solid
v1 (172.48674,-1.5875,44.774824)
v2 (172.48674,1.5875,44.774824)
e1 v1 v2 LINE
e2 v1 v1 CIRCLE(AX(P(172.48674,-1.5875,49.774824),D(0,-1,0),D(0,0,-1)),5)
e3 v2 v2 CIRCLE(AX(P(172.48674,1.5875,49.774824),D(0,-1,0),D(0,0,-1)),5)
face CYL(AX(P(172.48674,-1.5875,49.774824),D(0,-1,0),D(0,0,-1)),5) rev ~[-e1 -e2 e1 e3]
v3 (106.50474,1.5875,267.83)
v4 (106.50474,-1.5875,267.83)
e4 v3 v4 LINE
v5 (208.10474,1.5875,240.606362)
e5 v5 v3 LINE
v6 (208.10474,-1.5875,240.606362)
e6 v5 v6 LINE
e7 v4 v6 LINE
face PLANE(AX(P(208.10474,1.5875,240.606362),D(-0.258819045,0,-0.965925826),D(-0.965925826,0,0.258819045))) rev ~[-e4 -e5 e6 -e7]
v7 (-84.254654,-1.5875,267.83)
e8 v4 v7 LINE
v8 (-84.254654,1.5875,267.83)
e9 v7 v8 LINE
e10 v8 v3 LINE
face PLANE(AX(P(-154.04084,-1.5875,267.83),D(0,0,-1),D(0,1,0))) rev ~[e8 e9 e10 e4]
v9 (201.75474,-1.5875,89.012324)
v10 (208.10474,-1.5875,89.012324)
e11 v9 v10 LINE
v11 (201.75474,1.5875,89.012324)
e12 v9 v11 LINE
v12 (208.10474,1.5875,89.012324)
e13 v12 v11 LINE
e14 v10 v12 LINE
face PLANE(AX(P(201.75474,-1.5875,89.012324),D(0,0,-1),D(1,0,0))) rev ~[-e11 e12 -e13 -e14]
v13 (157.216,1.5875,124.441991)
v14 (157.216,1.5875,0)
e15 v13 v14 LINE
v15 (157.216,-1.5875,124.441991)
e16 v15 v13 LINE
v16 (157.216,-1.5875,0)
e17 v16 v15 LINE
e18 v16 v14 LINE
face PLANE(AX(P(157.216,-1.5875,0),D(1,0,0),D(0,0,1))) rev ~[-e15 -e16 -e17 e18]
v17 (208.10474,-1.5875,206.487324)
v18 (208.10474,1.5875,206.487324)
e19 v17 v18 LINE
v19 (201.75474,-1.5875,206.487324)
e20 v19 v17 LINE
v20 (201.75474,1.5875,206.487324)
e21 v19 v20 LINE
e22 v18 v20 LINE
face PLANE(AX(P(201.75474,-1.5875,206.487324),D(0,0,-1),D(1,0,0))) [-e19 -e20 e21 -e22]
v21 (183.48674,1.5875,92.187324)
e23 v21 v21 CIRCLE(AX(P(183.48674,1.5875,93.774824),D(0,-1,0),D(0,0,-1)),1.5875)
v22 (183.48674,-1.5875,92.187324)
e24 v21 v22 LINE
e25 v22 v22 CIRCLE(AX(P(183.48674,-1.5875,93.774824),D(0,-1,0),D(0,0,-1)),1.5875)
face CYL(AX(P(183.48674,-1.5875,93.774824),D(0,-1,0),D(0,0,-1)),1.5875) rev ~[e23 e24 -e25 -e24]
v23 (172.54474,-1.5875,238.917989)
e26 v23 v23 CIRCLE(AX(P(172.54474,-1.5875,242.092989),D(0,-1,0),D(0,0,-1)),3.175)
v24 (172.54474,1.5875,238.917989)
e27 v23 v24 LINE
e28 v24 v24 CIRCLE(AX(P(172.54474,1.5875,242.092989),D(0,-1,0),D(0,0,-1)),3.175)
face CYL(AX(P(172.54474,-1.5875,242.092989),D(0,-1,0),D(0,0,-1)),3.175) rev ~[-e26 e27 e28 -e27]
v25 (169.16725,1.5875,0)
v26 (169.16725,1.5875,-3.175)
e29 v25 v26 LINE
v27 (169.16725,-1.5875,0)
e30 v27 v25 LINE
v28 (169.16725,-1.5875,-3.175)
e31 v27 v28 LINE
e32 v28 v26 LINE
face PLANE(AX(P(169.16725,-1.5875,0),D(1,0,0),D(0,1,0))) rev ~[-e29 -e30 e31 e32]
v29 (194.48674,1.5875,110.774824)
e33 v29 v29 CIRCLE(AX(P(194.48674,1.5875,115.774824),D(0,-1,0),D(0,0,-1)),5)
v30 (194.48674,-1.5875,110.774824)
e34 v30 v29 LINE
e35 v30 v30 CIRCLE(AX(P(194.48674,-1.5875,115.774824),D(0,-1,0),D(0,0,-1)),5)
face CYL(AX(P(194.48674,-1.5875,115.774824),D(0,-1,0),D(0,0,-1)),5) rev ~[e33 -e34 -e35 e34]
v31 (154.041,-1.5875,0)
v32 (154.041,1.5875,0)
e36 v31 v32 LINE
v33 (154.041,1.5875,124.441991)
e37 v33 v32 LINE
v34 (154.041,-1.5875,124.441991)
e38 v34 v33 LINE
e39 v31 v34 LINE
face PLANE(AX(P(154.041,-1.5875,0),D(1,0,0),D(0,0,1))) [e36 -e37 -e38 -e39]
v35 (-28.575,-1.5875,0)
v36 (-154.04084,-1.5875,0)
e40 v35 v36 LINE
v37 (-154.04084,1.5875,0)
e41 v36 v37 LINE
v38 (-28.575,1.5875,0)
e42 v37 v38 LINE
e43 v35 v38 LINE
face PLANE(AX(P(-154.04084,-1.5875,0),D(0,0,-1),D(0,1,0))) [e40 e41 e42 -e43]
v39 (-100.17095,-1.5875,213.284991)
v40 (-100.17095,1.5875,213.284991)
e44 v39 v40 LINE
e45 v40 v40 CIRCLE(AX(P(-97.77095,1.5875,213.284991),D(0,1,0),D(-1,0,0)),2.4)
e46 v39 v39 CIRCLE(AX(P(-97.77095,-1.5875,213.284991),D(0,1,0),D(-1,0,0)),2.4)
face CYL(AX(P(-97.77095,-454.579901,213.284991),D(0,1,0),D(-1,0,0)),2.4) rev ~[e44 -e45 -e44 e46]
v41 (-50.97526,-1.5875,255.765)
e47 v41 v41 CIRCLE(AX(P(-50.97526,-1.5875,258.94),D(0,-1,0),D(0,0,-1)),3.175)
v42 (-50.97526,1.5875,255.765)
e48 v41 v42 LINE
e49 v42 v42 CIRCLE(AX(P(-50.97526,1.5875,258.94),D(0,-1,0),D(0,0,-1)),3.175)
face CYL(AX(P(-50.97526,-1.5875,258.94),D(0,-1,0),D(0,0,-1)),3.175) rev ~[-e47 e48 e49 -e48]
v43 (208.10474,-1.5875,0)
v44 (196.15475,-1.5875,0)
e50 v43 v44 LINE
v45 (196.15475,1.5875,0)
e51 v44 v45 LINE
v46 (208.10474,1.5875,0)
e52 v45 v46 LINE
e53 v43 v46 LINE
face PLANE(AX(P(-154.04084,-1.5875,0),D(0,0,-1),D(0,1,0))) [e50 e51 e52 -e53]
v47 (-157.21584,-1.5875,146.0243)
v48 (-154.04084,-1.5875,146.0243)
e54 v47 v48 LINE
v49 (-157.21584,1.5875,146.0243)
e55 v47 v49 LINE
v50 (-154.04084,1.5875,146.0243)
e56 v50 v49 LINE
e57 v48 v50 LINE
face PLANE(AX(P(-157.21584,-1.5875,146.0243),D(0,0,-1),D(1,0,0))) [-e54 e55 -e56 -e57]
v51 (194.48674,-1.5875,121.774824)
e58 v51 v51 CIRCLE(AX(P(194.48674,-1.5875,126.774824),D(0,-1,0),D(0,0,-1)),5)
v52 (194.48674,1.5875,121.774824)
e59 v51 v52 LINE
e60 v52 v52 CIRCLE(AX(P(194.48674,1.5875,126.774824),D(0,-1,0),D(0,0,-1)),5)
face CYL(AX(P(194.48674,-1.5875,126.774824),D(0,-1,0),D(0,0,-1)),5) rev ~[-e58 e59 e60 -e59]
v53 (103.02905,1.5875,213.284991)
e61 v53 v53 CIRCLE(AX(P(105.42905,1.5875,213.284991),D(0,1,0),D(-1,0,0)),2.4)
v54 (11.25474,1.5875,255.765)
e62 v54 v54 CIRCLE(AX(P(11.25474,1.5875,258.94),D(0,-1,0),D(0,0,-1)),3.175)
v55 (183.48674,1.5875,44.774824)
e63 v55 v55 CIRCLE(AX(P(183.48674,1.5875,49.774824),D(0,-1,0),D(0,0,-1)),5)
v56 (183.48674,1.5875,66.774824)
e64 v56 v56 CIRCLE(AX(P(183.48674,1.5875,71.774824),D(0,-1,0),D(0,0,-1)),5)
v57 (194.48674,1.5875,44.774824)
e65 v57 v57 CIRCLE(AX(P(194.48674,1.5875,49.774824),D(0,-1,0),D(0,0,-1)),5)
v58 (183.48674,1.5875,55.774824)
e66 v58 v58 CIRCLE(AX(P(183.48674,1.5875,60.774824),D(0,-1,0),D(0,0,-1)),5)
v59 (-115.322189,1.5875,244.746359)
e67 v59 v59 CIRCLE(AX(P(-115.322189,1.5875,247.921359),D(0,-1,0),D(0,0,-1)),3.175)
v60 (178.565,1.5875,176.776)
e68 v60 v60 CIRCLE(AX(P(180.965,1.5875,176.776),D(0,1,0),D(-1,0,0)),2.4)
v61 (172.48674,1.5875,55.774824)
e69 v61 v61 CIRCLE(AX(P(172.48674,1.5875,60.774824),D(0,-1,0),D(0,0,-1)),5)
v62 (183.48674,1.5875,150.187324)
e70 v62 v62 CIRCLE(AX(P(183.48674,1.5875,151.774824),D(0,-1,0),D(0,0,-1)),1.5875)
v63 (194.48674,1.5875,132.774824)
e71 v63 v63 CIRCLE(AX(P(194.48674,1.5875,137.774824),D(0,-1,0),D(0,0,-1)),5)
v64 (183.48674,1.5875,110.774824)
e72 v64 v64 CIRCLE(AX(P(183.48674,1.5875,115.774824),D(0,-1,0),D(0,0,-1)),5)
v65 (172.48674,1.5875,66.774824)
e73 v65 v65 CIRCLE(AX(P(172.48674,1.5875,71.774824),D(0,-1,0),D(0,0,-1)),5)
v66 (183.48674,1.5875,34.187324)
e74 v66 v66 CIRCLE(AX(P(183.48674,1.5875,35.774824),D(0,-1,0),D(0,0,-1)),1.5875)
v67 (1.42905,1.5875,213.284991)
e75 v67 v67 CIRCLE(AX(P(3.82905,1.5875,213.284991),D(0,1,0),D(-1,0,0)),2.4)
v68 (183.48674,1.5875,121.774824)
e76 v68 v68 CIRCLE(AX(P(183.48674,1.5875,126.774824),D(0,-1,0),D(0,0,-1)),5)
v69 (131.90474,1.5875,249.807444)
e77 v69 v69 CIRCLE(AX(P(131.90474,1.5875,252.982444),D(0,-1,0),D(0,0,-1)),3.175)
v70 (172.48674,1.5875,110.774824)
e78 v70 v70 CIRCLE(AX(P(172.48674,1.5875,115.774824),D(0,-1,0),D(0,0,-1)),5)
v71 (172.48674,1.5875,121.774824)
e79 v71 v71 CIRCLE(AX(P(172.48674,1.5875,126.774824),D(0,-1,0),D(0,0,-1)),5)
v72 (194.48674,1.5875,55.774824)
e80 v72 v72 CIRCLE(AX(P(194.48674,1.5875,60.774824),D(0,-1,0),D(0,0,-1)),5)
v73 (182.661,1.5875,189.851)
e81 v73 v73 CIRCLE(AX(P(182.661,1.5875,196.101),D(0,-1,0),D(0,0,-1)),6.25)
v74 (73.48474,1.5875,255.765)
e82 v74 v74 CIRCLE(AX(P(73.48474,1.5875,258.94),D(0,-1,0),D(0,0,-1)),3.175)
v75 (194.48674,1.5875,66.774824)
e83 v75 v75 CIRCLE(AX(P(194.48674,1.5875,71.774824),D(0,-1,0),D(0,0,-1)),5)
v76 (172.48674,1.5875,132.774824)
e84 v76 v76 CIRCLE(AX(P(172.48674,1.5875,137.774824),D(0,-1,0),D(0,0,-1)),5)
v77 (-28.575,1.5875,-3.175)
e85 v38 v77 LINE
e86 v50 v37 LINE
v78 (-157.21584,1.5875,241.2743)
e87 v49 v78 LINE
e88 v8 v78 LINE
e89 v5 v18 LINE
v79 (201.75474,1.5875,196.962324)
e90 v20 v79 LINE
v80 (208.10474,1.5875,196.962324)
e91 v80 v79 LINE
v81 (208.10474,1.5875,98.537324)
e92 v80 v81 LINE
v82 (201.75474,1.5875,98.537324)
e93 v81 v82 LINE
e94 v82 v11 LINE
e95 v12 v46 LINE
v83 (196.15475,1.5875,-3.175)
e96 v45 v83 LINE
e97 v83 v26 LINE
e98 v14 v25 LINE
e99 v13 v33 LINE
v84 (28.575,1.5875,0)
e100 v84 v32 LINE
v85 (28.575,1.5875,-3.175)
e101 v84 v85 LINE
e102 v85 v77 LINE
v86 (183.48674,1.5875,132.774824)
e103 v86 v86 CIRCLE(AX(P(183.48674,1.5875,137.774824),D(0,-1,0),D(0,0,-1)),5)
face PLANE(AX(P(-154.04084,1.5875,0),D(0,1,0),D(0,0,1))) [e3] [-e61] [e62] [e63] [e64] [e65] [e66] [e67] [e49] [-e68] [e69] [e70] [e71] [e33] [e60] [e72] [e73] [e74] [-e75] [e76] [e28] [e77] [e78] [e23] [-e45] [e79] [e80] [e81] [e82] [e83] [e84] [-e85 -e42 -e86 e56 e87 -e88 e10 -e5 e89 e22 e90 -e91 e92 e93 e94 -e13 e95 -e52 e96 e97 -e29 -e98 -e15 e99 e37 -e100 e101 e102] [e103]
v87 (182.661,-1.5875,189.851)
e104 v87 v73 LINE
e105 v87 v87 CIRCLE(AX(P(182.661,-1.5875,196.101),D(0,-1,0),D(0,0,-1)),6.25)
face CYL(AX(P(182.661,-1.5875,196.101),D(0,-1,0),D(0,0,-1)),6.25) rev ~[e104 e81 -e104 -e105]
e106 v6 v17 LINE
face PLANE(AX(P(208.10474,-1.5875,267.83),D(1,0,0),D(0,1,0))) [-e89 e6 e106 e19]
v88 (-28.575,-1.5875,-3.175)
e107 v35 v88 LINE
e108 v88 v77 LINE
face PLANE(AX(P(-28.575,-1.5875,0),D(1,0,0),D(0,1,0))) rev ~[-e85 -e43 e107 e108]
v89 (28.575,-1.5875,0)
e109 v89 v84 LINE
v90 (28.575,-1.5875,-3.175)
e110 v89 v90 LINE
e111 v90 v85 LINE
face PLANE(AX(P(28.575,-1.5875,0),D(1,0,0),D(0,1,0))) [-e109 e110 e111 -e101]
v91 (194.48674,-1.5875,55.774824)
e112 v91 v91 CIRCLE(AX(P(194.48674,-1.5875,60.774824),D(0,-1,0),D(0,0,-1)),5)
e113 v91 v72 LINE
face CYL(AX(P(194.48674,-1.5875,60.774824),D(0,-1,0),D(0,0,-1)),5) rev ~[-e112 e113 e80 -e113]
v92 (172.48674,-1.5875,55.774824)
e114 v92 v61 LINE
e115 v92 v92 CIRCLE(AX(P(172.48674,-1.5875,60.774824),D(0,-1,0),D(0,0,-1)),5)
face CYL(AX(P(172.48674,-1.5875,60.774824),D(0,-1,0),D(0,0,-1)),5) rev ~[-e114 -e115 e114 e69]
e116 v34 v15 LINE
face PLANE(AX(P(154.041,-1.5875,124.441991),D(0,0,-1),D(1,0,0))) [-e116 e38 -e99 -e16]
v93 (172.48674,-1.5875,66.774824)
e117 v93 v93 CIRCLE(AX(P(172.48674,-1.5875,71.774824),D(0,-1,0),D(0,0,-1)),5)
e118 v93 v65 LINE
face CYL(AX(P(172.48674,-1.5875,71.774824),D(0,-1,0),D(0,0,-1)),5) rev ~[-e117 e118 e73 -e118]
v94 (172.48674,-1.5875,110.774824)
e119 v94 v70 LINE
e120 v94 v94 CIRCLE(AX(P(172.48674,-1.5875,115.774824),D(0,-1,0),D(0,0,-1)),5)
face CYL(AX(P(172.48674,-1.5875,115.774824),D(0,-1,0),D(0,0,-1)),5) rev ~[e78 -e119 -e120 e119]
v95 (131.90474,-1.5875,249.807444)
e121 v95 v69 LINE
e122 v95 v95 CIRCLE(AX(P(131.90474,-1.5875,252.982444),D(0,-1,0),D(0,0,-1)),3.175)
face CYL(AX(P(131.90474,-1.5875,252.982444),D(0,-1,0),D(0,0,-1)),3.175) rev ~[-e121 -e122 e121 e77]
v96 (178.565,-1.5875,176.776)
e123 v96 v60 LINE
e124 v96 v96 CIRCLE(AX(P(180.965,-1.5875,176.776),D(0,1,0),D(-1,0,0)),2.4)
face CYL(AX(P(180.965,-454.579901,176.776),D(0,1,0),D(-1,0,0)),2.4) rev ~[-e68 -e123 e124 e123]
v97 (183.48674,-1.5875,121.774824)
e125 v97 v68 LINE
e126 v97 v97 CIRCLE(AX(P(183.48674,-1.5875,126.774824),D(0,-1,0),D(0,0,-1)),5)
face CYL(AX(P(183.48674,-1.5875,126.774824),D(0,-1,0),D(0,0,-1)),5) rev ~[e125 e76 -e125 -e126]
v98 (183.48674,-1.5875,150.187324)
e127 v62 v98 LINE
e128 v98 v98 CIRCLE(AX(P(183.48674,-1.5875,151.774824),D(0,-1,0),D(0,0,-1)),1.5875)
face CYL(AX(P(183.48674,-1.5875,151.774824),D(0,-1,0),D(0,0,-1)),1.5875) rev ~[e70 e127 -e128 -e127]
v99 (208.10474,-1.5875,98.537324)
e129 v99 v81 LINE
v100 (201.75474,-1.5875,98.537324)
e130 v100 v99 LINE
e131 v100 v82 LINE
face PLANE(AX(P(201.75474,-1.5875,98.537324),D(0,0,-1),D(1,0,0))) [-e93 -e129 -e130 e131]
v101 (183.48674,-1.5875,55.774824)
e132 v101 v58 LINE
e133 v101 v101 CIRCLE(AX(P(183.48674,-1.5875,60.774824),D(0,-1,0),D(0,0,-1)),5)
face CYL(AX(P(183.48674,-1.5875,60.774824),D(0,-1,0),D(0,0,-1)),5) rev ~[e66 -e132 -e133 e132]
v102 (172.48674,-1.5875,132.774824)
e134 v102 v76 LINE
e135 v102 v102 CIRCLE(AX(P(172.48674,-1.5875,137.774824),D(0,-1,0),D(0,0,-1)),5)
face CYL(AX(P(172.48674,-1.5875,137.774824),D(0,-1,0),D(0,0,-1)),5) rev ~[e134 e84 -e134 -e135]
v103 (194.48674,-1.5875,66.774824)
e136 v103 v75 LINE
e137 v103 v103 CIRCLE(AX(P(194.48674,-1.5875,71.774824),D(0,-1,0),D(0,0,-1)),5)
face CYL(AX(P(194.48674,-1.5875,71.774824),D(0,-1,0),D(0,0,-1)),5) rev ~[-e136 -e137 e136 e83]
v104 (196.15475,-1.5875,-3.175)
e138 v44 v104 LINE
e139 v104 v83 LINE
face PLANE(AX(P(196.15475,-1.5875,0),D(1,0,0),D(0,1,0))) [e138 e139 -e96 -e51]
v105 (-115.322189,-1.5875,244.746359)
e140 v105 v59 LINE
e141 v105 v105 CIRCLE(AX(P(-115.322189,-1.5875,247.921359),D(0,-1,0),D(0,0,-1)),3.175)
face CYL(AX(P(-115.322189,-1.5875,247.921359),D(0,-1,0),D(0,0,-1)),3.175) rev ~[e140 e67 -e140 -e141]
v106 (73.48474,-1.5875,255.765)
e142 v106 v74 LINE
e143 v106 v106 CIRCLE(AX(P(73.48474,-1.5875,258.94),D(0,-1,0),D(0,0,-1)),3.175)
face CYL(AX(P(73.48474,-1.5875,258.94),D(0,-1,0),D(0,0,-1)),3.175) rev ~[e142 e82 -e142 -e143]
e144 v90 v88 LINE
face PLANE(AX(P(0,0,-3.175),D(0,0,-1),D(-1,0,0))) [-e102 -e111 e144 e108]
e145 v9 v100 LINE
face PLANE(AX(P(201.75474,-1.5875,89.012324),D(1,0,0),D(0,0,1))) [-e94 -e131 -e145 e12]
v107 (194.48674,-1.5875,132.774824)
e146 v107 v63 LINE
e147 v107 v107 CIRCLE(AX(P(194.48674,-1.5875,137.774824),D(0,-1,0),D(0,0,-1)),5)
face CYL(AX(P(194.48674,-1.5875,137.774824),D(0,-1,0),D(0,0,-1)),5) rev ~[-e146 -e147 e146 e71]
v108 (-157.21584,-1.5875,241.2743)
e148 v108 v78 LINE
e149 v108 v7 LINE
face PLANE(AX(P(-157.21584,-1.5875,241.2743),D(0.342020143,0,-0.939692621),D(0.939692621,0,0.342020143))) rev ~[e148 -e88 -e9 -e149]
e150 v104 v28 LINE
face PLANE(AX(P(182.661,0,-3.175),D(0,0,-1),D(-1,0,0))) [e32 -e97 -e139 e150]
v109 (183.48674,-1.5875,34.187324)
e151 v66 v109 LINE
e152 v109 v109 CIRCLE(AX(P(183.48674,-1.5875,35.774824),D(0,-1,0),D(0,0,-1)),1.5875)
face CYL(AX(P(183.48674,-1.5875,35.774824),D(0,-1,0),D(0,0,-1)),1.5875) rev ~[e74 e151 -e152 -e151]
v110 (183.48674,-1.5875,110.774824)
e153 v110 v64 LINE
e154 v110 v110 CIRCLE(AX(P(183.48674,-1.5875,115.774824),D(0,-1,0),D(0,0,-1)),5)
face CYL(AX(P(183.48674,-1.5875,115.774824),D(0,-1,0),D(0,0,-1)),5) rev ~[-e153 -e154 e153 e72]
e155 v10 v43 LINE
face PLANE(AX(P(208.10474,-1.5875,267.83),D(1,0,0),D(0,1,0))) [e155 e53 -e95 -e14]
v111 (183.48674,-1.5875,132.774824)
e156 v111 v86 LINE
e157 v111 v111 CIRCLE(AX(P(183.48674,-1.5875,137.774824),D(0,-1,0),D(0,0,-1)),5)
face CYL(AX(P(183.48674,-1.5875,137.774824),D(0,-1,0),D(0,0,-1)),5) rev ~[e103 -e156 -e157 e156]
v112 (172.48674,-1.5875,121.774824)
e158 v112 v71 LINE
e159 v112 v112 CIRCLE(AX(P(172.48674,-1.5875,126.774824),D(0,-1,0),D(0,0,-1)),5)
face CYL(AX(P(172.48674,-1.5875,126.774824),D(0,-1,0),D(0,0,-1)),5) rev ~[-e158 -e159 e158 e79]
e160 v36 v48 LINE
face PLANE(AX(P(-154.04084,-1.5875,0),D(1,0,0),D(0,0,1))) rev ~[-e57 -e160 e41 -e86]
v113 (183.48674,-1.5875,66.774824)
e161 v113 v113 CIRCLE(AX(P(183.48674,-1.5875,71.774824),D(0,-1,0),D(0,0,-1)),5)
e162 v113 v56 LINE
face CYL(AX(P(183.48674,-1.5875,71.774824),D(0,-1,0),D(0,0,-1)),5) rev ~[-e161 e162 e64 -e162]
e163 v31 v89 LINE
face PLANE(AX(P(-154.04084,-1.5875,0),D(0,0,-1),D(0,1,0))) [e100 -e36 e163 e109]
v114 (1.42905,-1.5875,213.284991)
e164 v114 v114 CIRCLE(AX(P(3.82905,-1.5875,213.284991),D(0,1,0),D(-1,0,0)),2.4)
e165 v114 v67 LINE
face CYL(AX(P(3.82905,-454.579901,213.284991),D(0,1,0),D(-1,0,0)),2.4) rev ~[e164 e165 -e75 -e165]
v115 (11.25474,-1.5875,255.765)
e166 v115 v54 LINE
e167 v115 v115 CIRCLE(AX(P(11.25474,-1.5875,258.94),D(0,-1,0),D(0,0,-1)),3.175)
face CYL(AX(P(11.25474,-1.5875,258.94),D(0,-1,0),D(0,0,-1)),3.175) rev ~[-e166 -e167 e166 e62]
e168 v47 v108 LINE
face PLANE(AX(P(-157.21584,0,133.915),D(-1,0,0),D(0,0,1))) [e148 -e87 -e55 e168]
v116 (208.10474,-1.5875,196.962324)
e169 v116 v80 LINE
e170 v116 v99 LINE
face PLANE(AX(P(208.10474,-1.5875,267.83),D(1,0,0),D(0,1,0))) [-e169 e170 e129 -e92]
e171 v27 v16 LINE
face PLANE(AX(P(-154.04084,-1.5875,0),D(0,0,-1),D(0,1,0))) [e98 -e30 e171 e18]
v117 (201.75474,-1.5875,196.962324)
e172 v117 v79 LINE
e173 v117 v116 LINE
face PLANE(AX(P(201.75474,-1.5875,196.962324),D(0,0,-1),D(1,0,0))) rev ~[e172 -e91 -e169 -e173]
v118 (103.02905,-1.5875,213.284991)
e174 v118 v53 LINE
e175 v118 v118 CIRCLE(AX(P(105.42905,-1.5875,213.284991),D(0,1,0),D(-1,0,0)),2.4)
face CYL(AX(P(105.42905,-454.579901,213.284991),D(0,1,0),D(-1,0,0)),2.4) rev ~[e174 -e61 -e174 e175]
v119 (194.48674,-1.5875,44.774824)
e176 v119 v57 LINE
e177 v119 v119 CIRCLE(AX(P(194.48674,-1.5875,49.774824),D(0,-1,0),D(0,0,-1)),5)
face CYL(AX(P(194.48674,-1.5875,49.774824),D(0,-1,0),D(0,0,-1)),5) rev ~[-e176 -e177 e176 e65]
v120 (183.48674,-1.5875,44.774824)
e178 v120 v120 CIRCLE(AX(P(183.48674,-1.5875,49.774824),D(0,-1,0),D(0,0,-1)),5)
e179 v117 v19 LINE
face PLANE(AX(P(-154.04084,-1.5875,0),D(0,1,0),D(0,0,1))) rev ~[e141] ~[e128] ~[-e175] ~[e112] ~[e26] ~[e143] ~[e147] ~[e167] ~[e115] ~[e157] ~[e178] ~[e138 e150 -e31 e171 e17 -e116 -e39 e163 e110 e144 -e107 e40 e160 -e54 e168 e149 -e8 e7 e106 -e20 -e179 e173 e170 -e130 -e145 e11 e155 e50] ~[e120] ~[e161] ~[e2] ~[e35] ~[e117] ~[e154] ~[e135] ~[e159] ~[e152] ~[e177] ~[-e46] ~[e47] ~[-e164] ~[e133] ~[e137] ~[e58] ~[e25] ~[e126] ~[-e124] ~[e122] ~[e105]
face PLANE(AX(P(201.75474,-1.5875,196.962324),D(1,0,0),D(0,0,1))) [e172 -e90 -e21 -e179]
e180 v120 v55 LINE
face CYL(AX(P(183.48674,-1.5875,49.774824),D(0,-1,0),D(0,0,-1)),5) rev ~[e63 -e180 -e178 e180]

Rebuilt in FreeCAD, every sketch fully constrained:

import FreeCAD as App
import Part
import Sketcher
Q = App.Units.Quantity


def add_polygon(sketch, points):
    """Adds a closed chain of lines whose ends are joined by coincident constraints."""
    first, n = sketch.GeometryCount, len(points)
    for a, b in zip(points, points[1:] + points[:1]):
        sketch.addGeometry(Part.LineSegment(App.Vector(*a, 0), App.Vector(*b, 0)), False)
    for i in range(n):
        sketch.addConstraint(Sketcher.Constraint("Coincident", first + i, 2, first + (i + 1) % n, 1))

doc = App.newDocument("Part")
body = doc.addObject("PartDesign::Body", "Body")

# Sketch on XY plane
sketch1 = doc.addObject("Sketcher::SketchObject", "Sketch")
body.addObject(sketch1)
sketch1.AttachmentSupport = (doc.XY_Plane, [""])
sketch1.MapMode = "FlatFace"
add_polygon(sketch1, [(-154, 1.6), (-154, -1.6), (154, -1.6), (154, 1.6)])  # lines 0-3
sketch1.addConstraint(Sketcher.Constraint("Vertical", 0))
sketch1.addConstraint(Sketcher.Constraint("Horizontal", 1))
sketch1.addConstraint(Sketcher.Constraint("Vertical", 2))
sketch1.addConstraint(Sketcher.Constraint("Horizontal", 3))
sketch1.addConstraint(Sketcher.Constraint("Symmetric", 0, 2, 2, 2, -1, 1))
sketch1.addConstraint(Sketcher.Constraint("DistanceY", 0, 2, 0, 1, Q("0.125 in")))
sketch1.addConstraint(Sketcher.Constraint("DistanceX", 1, 1, 1, 2, Q("12.1292 in")))
pad1 = doc.addObject("PartDesign::Pad", "Pad")
body.addObject(pad1)
pad1.Profile = sketch1
pad1.Length = 267.83

# Sketch on YZ plane
sketch2 = doc.addObject("Sketcher::SketchObject", "Sketch001")
body.addObject(sketch2)
sketch2.AttachmentSupport = (doc.YZ_Plane, [""])
sketch2.MapMode = "FlatFace"
sketch2.AttachmentOffset = App.Placement(App.Vector(0, 0, 6.0646 * 25.4), App.Rotation())
add_polygon(sketch2, [(1.6, 267.8), (-1.6, 267.8), (-1.6, 0), (1.6, 0)])  # lines 0-3
sketch2.addConstraint(Sketcher.Constraint("Horizontal", 0))
sketch2.addConstraint(Sketcher.Constraint("Vertical", 1))
sketch2.addConstraint(Sketcher.Constraint("Horizontal", 2))
sketch2.addConstraint(Sketcher.Constraint("Vertical", 3))
sketch2.addConstraint(Sketcher.Constraint("Symmetric", 1, 2, 2, 2, -1, 1))
sketch2.addConstraint(Sketcher.Constraint("DistanceX", 0, 2, 0, 1, Q("0.125 in")))
sketch2.addConstraint(Sketcher.Constraint("DistanceY", 1, 2, 1, 1, 267.83))
pad2 = doc.addObject("PartDesign::Pad", "Pad001")
body.addObject(pad2)
pad2.Profile = sketch2
pad2.Length = Q("0.125 in")

# Sketch on XY plane
sketch3 = doc.addObject("Sketcher::SketchObject", "Sketch002")
body.addObject(sketch3)
sketch3.AttachmentSupport = (doc.XY_Plane, [""])
sketch3.MapMode = "FlatFace"
sketch3.AttachmentOffset = App.Placement(App.Vector(0, 0, 267.83), App.Rotation())
add_polygon(sketch3, [(157.2, 1.6), (157.2, -1.6), (208.1, -1.6), (208.1, 1.6)])  # lines 0-3
sketch3.addConstraint(Sketcher.Constraint("Vertical", 0))
sketch3.addConstraint(Sketcher.Constraint("Horizontal", 1))
sketch3.addConstraint(Sketcher.Constraint("Vertical", 2))
sketch3.addConstraint(Sketcher.Constraint("Horizontal", 3))
sketch3.addConstraint(Sketcher.Constraint("DistanceY", 0, 2, 0, 1, Q("0.125 in")))
sketch3.addConstraint(Sketcher.Constraint("DistanceX", 1, 1, 1, 2, Q("2.0035 in")))
sketch3.addConstraint(Sketcher.Constraint("DistanceY", 0, 2, -1, 1, Q("0.0625 in")))
sketch3.addConstraint(Sketcher.Constraint("DistanceX", -1, 1, 0, 2, Q("6.1896 in")))
pad3 = doc.addObject("PartDesign::Pad", "Pad002")
body.addObject(pad3)
pad3.Profile = sketch3
pad3.Length = 267.83
pad3.Reversed = True

# Sketch on XZ plane
sketch4 = doc.addObject("Sketcher::SketchObject", "Sketch003")
body.addObject(sketch4)
sketch4.AttachmentSupport = (doc.XZ_Plane, [""])
sketch4.MapMode = "FlatFace"
sketch4.AttachmentOffset = App.Placement(App.Vector(0, 0, -0.0625 * 25.4), App.Rotation())
add_polygon(sketch4, [(208, 241), (107, 268), (208, 268)])  # lines 0-2
sketch4.addConstraint(Sketcher.Constraint("Horizontal", 1))
sketch4.addConstraint(Sketcher.Constraint("Vertical", 2))
sketch4.addConstraint(Sketcher.Constraint("DistanceX", 1, 1, 1, 2, Q("4 in")))
sketch4.addConstraint(Sketcher.Constraint("Angle", 0, Q("165 deg")))
sketch4.addConstraint(Sketcher.Constraint("DistanceX", -1, 1, 0, 2, Q("4.1931 in")))
sketch4.addConstraint(Sketcher.Constraint("DistanceY", -1, 1, 0, 2, 267.83))
pocket1 = doc.addObject("PartDesign::Pocket", "Pocket")
body.addObject(pocket1)
pocket1.Profile = sketch4
pocket1.Type = "ThroughAll"
pocket1.Reversed = True

# Sketch on YZ plane
sketch5 = doc.addObject("Sketcher::SketchObject", "Sketch004")
body.addObject(sketch5)
sketch5.AttachmentSupport = (doc.YZ_Plane, [""])
sketch5.MapMode = "FlatFace"
sketch5.AttachmentOffset = App.Placement(App.Vector(0, 0, -6.0646 * 25.4), App.Rotation())
add_polygon(sketch5, [(1.6, 0), (-1.6, 0), (-1.6, 267.8), (1.6, 267.8)])  # lines 0-3
sketch5.addConstraint(Sketcher.Constraint("Horizontal", 0))
sketch5.addConstraint(Sketcher.Constraint("Vertical", 1))
sketch5.addConstraint(Sketcher.Constraint("Horizontal", 2))
sketch5.addConstraint(Sketcher.Constraint("Vertical", 3))
sketch5.addConstraint(Sketcher.Constraint("Symmetric", 0, 2, 3, 2, -1, 1))
sketch5.addConstraint(Sketcher.Constraint("DistanceX", 0, 2, 0, 1, Q("0.125 in")))
sketch5.addConstraint(Sketcher.Constraint("DistanceY", 1, 1, 1, 2, 267.83))
pad4 = doc.addObject("PartDesign::Pad", "Pad003")
body.addObject(pad4)
pad4.Profile = sketch5
pad4.Length = Q("0.125 in")
pad4.Reversed = True

# Sketch on XZ plane
sketch6 = doc.addObject("Sketcher::SketchObject", "Sketch005")
body.addObject(sketch6)
sketch6.AttachmentSupport = (doc.XZ_Plane, [""])
sketch6.MapMode = "FlatFace"
sketch6.AttachmentOffset = App.Placement(App.Vector(0, 0, 0.0625 * 25.4), App.Rotation())
add_polygon(sketch6, [(-157, 241), (-84, 268), (-157, 268)])  # lines 0-2
sketch6.addConstraint(Sketcher.Constraint("Horizontal", 1))
sketch6.addConstraint(Sketcher.Constraint("Vertical", 2))
sketch6.addConstraint(Sketcher.Constraint("Angle", 0, Q("20 deg")))
sketch6.addConstraint(Sketcher.Constraint("DistanceY", 2, 2, 2, 1, Q("1.0455 in")))
sketch6.addConstraint(Sketcher.Constraint("DistanceX", 1, 2, -1, 1, Q("6.1896 in")))
sketch6.addConstraint(Sketcher.Constraint("DistanceY", -1, 1, 0, 2, 267.83))
pocket2 = doc.addObject("PartDesign::Pocket", "Pocket001")
body.addObject(pocket2)
pocket2.Profile = sketch6
pocket2.Type = "ThroughAll"

# Sketch on XZ plane
sketch7 = doc.addObject("Sketcher::SketchObject", "Sketch006")
body.addObject(sketch7)
sketch7.AttachmentSupport = (doc.XZ_Plane, [""])
sketch7.MapMode = "FlatFace"
sketch7.AttachmentOffset = App.Placement(App.Vector(0, 0, 0.0625 * 25.4), App.Rotation())
sketch7.addGeometry(Part.Circle(App.Vector(-115.3, 247.9, 0), App.Vector(0, 0, 1), 3.2), False)
sketch7.addGeometry(Part.Circle(App.Vector(-51, 258.9, 0), App.Vector(0, 0, 1), 3.2), False)
sketch7.addGeometry(Part.Circle(App.Vector(11.3, 258.9, 0), App.Vector(0, 0, 1), 3.2), False)
sketch7.addGeometry(Part.Circle(App.Vector(73.5, 258.9, 0), App.Vector(0, 0, 1), 3.2), False)
sketch7.addGeometry(Part.Circle(App.Vector(172.5, 242.1, 0), App.Vector(0, 0, 1), 3.2), False)
sketch7.addGeometry(Part.Circle(App.Vector(131.9, 253, 0), App.Vector(0, 0, 1), 3.2), False)
sketch7.addConstraint(Sketcher.Constraint("Equal", 0, 1))
sketch7.addConstraint(Sketcher.Constraint("Equal", 1, 2))
sketch7.addConstraint(Sketcher.Constraint("Equal", 2, 3))
sketch7.addConstraint(Sketcher.Constraint("Equal", 3, 4))
sketch7.addConstraint(Sketcher.Constraint("Equal", 4, 5))
sketch7.addConstraint(Sketcher.Constraint("Horizontal", 1, 3, 2, 3))
sketch7.addConstraint(Sketcher.Constraint("Horizontal", 2, 3, 3, 3))
sketch7.addConstraint(Sketcher.Constraint("Diameter", 0, Q("0.25 in")))
sketch7.addConstraint(Sketcher.Constraint("DistanceX", 1, 3, 3, 3, Q("4.9 in")))
sketch7.addConstraint(Sketcher.Constraint("DistanceX", 3, 3, 4, 3, Q("3.9 in")))
sketch7.addConstraint(Sketcher.Constraint("DistanceX", 5, 3, 4, 3, Q("1.6 in")))
sketch7.addConstraint(Sketcher.Constraint("DistanceX", 1, 3, 2, 3, Q("2.45 in")))
sketch7.addConstraint(Sketcher.Constraint("DistanceX", 1, 3, -1, 1, Q("2.0069 in")))
sketch7.addConstraint(Sketcher.Constraint("DistanceY", -1, 1, 1, 3, 258.94))
sketch7.addConstraint(Sketcher.Constraint("DistanceX", 0, 3, -1, 1, 115.322189))
sketch7.addConstraint(Sketcher.Constraint("DistanceY", -1, 1, 0, 3, 247.921359))
sketch7.addConstraint(Sketcher.Constraint("DistanceY", -1, 1, 4, 3, 242.092989))
sketch7.addConstraint(Sketcher.Constraint("DistanceY", -1, 1, 5, 3, 252.982444))
pocket3 = doc.addObject("PartDesign::Pocket", "Pocket002")
body.addObject(pocket3)
pocket3.Profile = sketch7
pocket3.Length = Q("0.125 in")

# Sketch on XZ plane
sketch8 = doc.addObject("Sketcher::SketchObject", "Sketch007")
body.addObject(sketch8)
sketch8.AttachmentSupport = (doc.XZ_Plane, [""])
sketch8.MapMode = "FlatFace"
sketch8.AttachmentOffset = App.Placement(App.Vector(0, 0, 0.0625 * 25.4), App.Rotation())
sketch8.addGeometry(Part.Circle(App.Vector(172, 138, 0), App.Vector(0, 0, 1), 5), False)
sketch8.addGeometry(Part.Circle(App.Vector(183, 138, 0), App.Vector(0, 0, 1), 5), False)
sketch8.addGeometry(Part.Circle(App.Vector(194, 138, 0), App.Vector(0, 0, 1), 5), False)
sketch8.addGeometry(Part.Circle(App.Vector(194, 127, 0), App.Vector(0, 0, 1), 5), False)
sketch8.addGeometry(Part.Circle(App.Vector(194, 116, 0), App.Vector(0, 0, 1), 5), False)
sketch8.addGeometry(Part.Circle(App.Vector(183, 127, 0), App.Vector(0, 0, 1), 5), False)
sketch8.addGeometry(Part.Circle(App.Vector(183, 116, 0), App.Vector(0, 0, 1), 5), False)
sketch8.addGeometry(Part.Circle(App.Vector(172, 116, 0), App.Vector(0, 0, 1), 5), False)
sketch8.addGeometry(Part.Circle(App.Vector(172, 127, 0), App.Vector(0, 0, 1), 5), False)
sketch8.addGeometry(Part.Circle(App.Vector(194, 72, 0), App.Vector(0, 0, 1), 5), False)
sketch8.addGeometry(Part.Circle(App.Vector(194, 61, 0), App.Vector(0, 0, 1), 5), False)
sketch8.addGeometry(Part.Circle(App.Vector(194, 50, 0), App.Vector(0, 0, 1), 5), False)
sketch8.addGeometry(Part.Circle(App.Vector(183, 72, 0), App.Vector(0, 0, 1), 5), False)
sketch8.addGeometry(Part.Circle(App.Vector(183, 61, 0), App.Vector(0, 0, 1), 5), False)
sketch8.addGeometry(Part.Circle(App.Vector(183, 50, 0), App.Vector(0, 0, 1), 5), False)
sketch8.addGeometry(Part.Circle(App.Vector(172, 50, 0), App.Vector(0, 0, 1), 5), False)
sketch8.addGeometry(Part.Circle(App.Vector(172, 61, 0), App.Vector(0, 0, 1), 5), False)
sketch8.addGeometry(Part.Circle(App.Vector(172, 72, 0), App.Vector(0, 0, 1), 5), False)
sketch8.addConstraint(Sketcher.Constraint("Equal", 0, 1))
sketch8.addConstraint(Sketcher.Constraint("Equal", 1, 2))
sketch8.addConstraint(Sketcher.Constraint("Equal", 2, 3))
sketch8.addConstraint(Sketcher.Constraint("Equal", 3, 4))
sketch8.addConstraint(Sketcher.Constraint("Equal", 4, 5))
sketch8.addConstraint(Sketcher.Constraint("Equal", 5, 6))
sketch8.addConstraint(Sketcher.Constraint("Equal", 6, 7))
sketch8.addConstraint(Sketcher.Constraint("Equal", 7, 8))
sketch8.addConstraint(Sketcher.Constraint("Equal", 8, 9))
sketch8.addConstraint(Sketcher.Constraint("Equal", 9, 10))
sketch8.addConstraint(Sketcher.Constraint("Equal", 10, 11))
sketch8.addConstraint(Sketcher.Constraint("Equal", 11, 12))
sketch8.addConstraint(Sketcher.Constraint("Equal", 12, 13))
sketch8.addConstraint(Sketcher.Constraint("Equal", 13, 14))
sketch8.addConstraint(Sketcher.Constraint("Equal", 14, 15))
sketch8.addConstraint(Sketcher.Constraint("Equal", 15, 16))
sketch8.addConstraint(Sketcher.Constraint("Equal", 16, 17))
sketch8.addConstraint(Sketcher.Constraint("Horizontal", 0, 3, 1, 3))
sketch8.addConstraint(Sketcher.Constraint("Horizontal", 1, 3, 2, 3))
sketch8.addConstraint(Sketcher.Constraint("Horizontal", 3, 3, 5, 3))
sketch8.addConstraint(Sketcher.Constraint("Horizontal", 4, 3, 6, 3))
sketch8.addConstraint(Sketcher.Constraint("Horizontal", 6, 3, 7, 3))
sketch8.addConstraint(Sketcher.Constraint("Horizontal", 5, 3, 8, 3))
sketch8.addConstraint(Sketcher.Constraint("Horizontal", 9, 3, 12, 3))
sketch8.addConstraint(Sketcher.Constraint("Horizontal", 10, 3, 13, 3))
sketch8.addConstraint(Sketcher.Constraint("Horizontal", 11, 3, 14, 3))
sketch8.addConstraint(Sketcher.Constraint("Horizontal", 14, 3, 15, 3))
sketch8.addConstraint(Sketcher.Constraint("Horizontal", 13, 3, 16, 3))
sketch8.addConstraint(Sketcher.Constraint("Horizontal", 12, 3, 17, 3))
sketch8.addConstraint(Sketcher.Constraint("Vertical", 2, 3, 3, 3))
sketch8.addConstraint(Sketcher.Constraint("Vertical", 3, 3, 4, 3))
sketch8.addConstraint(Sketcher.Constraint("Vertical", 1, 3, 5, 3))
sketch8.addConstraint(Sketcher.Constraint("Vertical", 5, 3, 6, 3))
sketch8.addConstraint(Sketcher.Constraint("Vertical", 0, 3, 7, 3))
sketch8.addConstraint(Sketcher.Constraint("Vertical", 7, 3, 8, 3))
sketch8.addConstraint(Sketcher.Constraint("Vertical", 4, 3, 9, 3))
sketch8.addConstraint(Sketcher.Constraint("Vertical", 9, 3, 10, 3))
sketch8.addConstraint(Sketcher.Constraint("Vertical", 10, 3, 11, 3))
sketch8.addConstraint(Sketcher.Constraint("Vertical", 6, 3, 12, 3))
sketch8.addConstraint(Sketcher.Constraint("Vertical", 12, 3, 13, 3))
sketch8.addConstraint(Sketcher.Constraint("Vertical", 13, 3, 14, 3))
sketch8.addConstraint(Sketcher.Constraint("Vertical", 8, 3, 15, 3))
sketch8.addConstraint(Sketcher.Constraint("Vertical", 15, 3, 16, 3))
sketch8.addConstraint(Sketcher.Constraint("Vertical", 16, 3, 17, 3))
sketch8.addConstraint(Sketcher.Constraint("Diameter", 0, 10.0))
sketch8.addConstraint(Sketcher.Constraint("DistanceX", 0, 3, 1, 3, 11.0))
sketch8.addConstraint(Sketcher.Constraint("DistanceX", 1, 3, 2, 3, 11.0))
sketch8.addConstraint(Sketcher.Constraint("DistanceY", 3, 3, 2, 3, 11.0))
sketch8.addConstraint(Sketcher.Constraint("DistanceY", 4, 3, 3, 3, 11.0))
sketch8.addConstraint(Sketcher.Constraint("DistanceY", 9, 3, 4, 3, 44.0))
sketch8.addConstraint(Sketcher.Constraint("DistanceY", 10, 3, 9, 3, 11.0))
sketch8.addConstraint(Sketcher.Constraint("DistanceY", 11, 3, 10, 3, 11.0))
sketch8.addConstraint(Sketcher.Constraint("DistanceX", -1, 1, 0, 3, 172.48674))
sketch8.addConstraint(Sketcher.Constraint("DistanceY", -1, 1, 0, 3, 137.774824))
pocket4 = doc.addObject("PartDesign::Pocket", "Pocket003")
body.addObject(pocket4)
pocket4.Profile = sketch8
pocket4.Type = "ThroughAll"

# Sketch on XZ plane
sketch9 = doc.addObject("Sketcher::SketchObject", "Sketch008")
body.addObject(sketch9)
sketch9.AttachmentSupport = (doc.XZ_Plane, [""])
sketch9.MapMode = "FlatFace"
sketch9.AttachmentOffset = App.Placement(App.Vector(0, 0, 0.0625 * 25.4), App.Rotation())
sketch9.addGeometry(Part.Circle(App.Vector(183.5, 151.8, 0), App.Vector(0, 0, 1), 1.6), False)
sketch9.addConstraint(Sketcher.Constraint("Diameter", 0, Q("0.125 in")))
sketch9.addConstraint(Sketcher.Constraint("DistanceX", -1, 1, 0, 3, 183.48674))
sketch9.addConstraint(Sketcher.Constraint("DistanceY", -1, 1, 0, 3, 151.774824))
pocket5 = doc.addObject("PartDesign::Pocket", "Pocket004")
body.addObject(pocket5)
pocket5.Profile = sketch9
pocket5.Length = 680.382112
pocket5.Midplane = True
doc.recompute()

linearpattern = doc.addObject("PartDesign::LinearPattern", "LinearPattern")
body.addObject(linearpattern)
linearpattern.Originals = [pocket5]
linearpattern.Direction = (doc.Z_Axis, [""])
linearpattern.Mode = "offset"
linearpattern.Offset = 58
linearpattern.Occurrences = 3
linearpattern.Reversed = True
body.Tip = linearpattern

# Sketch on XZ plane
sketch10 = doc.addObject("Sketcher::SketchObject", "Sketch009")
body.addObject(sketch10)
sketch10.AttachmentSupport = (doc.XZ_Plane, [""])
sketch10.MapMode = "FlatFace"
sketch10.AttachmentOffset = App.Placement(App.Vector(0, 0, 0.0625 * 25.4), App.Rotation())
sketch10.addGeometry(Part.Circle(App.Vector(181, 176.8, 0), App.Vector(0, 0, 1), 2.4), False)
sketch10.addGeometry(Part.Circle(App.Vector(-97.8, 213.3, 0), App.Vector(0, 0, 1), 2.4), False)
sketch10.addGeometry(Part.Circle(App.Vector(3.8, 213.3, 0), App.Vector(0, 0, 1), 2.4), False)
sketch10.addGeometry(Part.Circle(App.Vector(105.4, 213.3, 0), App.Vector(0, 0, 1), 2.4), False)
sketch10.addConstraint(Sketcher.Constraint("Equal", 0, 1))
sketch10.addConstraint(Sketcher.Constraint("Equal", 1, 2))
sketch10.addConstraint(Sketcher.Constraint("Equal", 2, 3))
sketch10.addConstraint(Sketcher.Constraint("Horizontal", 1, 3, 2, 3))
sketch10.addConstraint(Sketcher.Constraint("Horizontal", 2, 3, 3, 3))
sketch10.addConstraint(Sketcher.Constraint("DistanceX", 1, 3, 2, 3, Q("4 in")))
sketch10.addConstraint(Sketcher.Constraint("DistanceX", 2, 3, 3, 3, Q("4 in")))
sketch10.addConstraint(Sketcher.Constraint("Diameter", 0, 4.8))
sketch10.addConstraint(Sketcher.Constraint("DistanceX", -1, 1, 0, 3, 180.965))
sketch10.addConstraint(Sketcher.Constraint("DistanceY", -1, 1, 0, 3, 176.776))
sketch10.addConstraint(Sketcher.Constraint("DistanceX", 1, 3, -1, 1, 97.77095))
sketch10.addConstraint(Sketcher.Constraint("DistanceY", -1, 1, 1, 3, 213.284991))
doc.recompute()
hole = doc.addObject("PartDesign::Hole", "Hole")
body.addObject(hole)
hole.Profile = sketch10
hole.ThreadType = "None"
hole.Diameter = 4.8
hole.DepthType = "ThroughAll"

# Sketch on XY plane
sketch11 = doc.addObject("Sketcher::SketchObject", "Sketch010")
body.addObject(sketch11)
sketch11.AttachmentSupport = (doc.XY_Plane, [""])
sketch11.MapMode = "FlatFace"
add_polygon(sketch11, [(28.6, 1.6), (28.6, -1.6), (-28.6, -1.6), (-28.6, 1.6)])  # lines 0-3
add_polygon(sketch11, [(196.2, 1.6), (196.2, -1.6), (169.2, -1.6), (169.2, 1.6)])  # lines 4-7
sketch11.addConstraint(Sketcher.Constraint("Vertical", 0))
sketch11.addConstraint(Sketcher.Constraint("Horizontal", 1))
sketch11.addConstraint(Sketcher.Constraint("Vertical", 2))
sketch11.addConstraint(Sketcher.Constraint("Horizontal", 3))
sketch11.addConstraint(Sketcher.Constraint("Vertical", 4))
sketch11.addConstraint(Sketcher.Constraint("Horizontal", 5))
sketch11.addConstraint(Sketcher.Constraint("Vertical", 6))
sketch11.addConstraint(Sketcher.Constraint("Horizontal", 7))
sketch11.addConstraint(Sketcher.Constraint("Symmetric", 0, 2, 2, 2, -1, 1))
sketch11.addConstraint(Sketcher.Constraint("Horizontal", 1, 2, 4, 2))
sketch11.addConstraint(Sketcher.Constraint("Horizontal", 3, 2, 6, 2))
sketch11.addConstraint(Sketcher.Constraint("DistanceX", 1, 2, 1, 1, Q("2.25 in")))
sketch11.addConstraint(Sketcher.Constraint("DistanceX", 5, 2, 5, 1, Q("1.0625 in")))
sketch11.addConstraint(Sketcher.Constraint("DistanceY", 0, 2, 0, 1, Q("0.125 in")))
sketch11.addConstraint(Sketcher.Constraint("DistanceX", -1, 1, 4, 2, 196.15475))
pad5 = doc.addObject("PartDesign::Pad", "Pad004")
body.addObject(pad5)
pad5.Profile = sketch11
pad5.Length = Q("0.125 in")
pad5.Reversed = True

# Sketch on XZ plane
sketch12 = doc.addObject("Sketcher::SketchObject", "Sketch011")
body.addObject(sketch12)
sketch12.AttachmentSupport = (doc.XZ_Plane, [""])
sketch12.MapMode = "FlatFace"
sketch12.AttachmentOffset = App.Placement(App.Vector(0, 0, 0.0625 * 25.4), App.Rotation())
add_polygon(sketch12, [(154, 124.4), (154, 0), (157.2, 0), (157.2, 124.4)])  # lines 0-3
sketch12.addConstraint(Sketcher.Constraint("Vertical", 0))
sketch12.addConstraint(Sketcher.Constraint("Horizontal", 1))
sketch12.addConstraint(Sketcher.Constraint("Vertical", 2))
sketch12.addConstraint(Sketcher.Constraint("Horizontal", 3))
sketch12.addConstraint(Sketcher.Constraint("PointOnObject", 0, 2, -1))
sketch12.addConstraint(Sketcher.Constraint("DistanceX", 1, 1, 1, 2, Q("0.125 in")))
sketch12.addConstraint(Sketcher.Constraint("DistanceY", 0, 2, 0, 1, 124.441991))
sketch12.addConstraint(Sketcher.Constraint("DistanceX", -1, 1, 0, 2, 154.041))
pocket6 = doc.addObject("PartDesign::Pocket", "Pocket005")
body.addObject(pocket6)
pocket6.Profile = sketch12
pocket6.Type = "ThroughAll"

# Sketch on XZ plane
sketch13 = doc.addObject("Sketcher::SketchObject", "Sketch012")
body.addObject(sketch13)
sketch13.AttachmentSupport = (doc.XZ_Plane, [""])
sketch13.MapMode = "FlatFace"
sketch13.AttachmentOffset = App.Placement(App.Vector(0, 0, 0.0625 * 25.4), App.Rotation())
add_polygon(sketch13, [(-157.2, 146), (-157.2, 0), (-154, 0), (-154, 146)])  # lines 0-3
sketch13.addConstraint(Sketcher.Constraint("Vertical", 0))
sketch13.addConstraint(Sketcher.Constraint("Horizontal", 1))
sketch13.addConstraint(Sketcher.Constraint("Vertical", 2))
sketch13.addConstraint(Sketcher.Constraint("Horizontal", 3))
sketch13.addConstraint(Sketcher.Constraint("PointOnObject", 0, 2, -1))
sketch13.addConstraint(Sketcher.Constraint("DistanceX", 1, 1, 1, 2, Q("0.125 in")))
sketch13.addConstraint(Sketcher.Constraint("DistanceY", 0, 2, 0, 1, 146.0243))
sketch13.addConstraint(Sketcher.Constraint("DistanceX", 0, 2, -1, 1, Q("6.1896 in")))
pocket7 = doc.addObject("PartDesign::Pocket", "Pocket006")
body.addObject(pocket7)
pocket7.Profile = sketch13
pocket7.Type = "ThroughAll"

# Sketch on XZ plane
sketch14 = doc.addObject("Sketcher::SketchObject", "Sketch013")
body.addObject(sketch14)
sketch14.AttachmentSupport = (doc.XZ_Plane, [""])
sketch14.MapMode = "FlatFace"
sketch14.AttachmentOffset = App.Placement(App.Vector(0, 0, 0.0625 * 25.4), App.Rotation())
add_polygon(sketch14, [(202, 99), (202, 89), (208, 89), (208, 99)])  # lines 0-3
add_polygon(sketch14, [(202, 206), (202, 197), (208, 197), (208, 206)])  # lines 4-7
sketch14.addConstraint(Sketcher.Constraint("Vertical", 0))
sketch14.addConstraint(Sketcher.Constraint("Horizontal", 1))
sketch14.addConstraint(Sketcher.Constraint("Vertical", 2))
sketch14.addConstraint(Sketcher.Constraint("Horizontal", 3))
sketch14.addConstraint(Sketcher.Constraint("Vertical", 4))
sketch14.addConstraint(Sketcher.Constraint("Horizontal", 5))
sketch14.addConstraint(Sketcher.Constraint("Vertical", 6))
sketch14.addConstraint(Sketcher.Constraint("Horizontal", 7))
sketch14.addConstraint(Sketcher.Constraint("Vertical", 3, 2, 4, 2))
sketch14.addConstraint(Sketcher.Constraint("Vertical", 2, 2, 5, 2))
sketch14.addConstraint(Sketcher.Constraint("Equal", 2, 4))
sketch14.addConstraint(Sketcher.Constraint("DistanceX", 1, 1, 1, 2, Q("0.25 in")))
sketch14.addConstraint(Sketcher.Constraint("DistanceY", 0, 2, 0, 1, Q("0.375 in")))
sketch14.addConstraint(Sketcher.Constraint("DistanceY", 0, 2, 4, 2, Q("4.25 in")))
sketch14.addConstraint(Sketcher.Constraint("DistanceX", -1, 1, 0, 2, Q("7.9431 in")))
sketch14.addConstraint(Sketcher.Constraint("DistanceY", -1, 1, 0, 2, 89.012324))
pocket8 = doc.addObject("PartDesign::Pocket", "Pocket007")
body.addObject(pocket8)
pocket8.Profile = sketch14
pocket8.Type = "ThroughAll"

# Sketch on XZ plane
sketch15 = doc.addObject("Sketcher::SketchObject", "Sketch014")
body.addObject(sketch15)
sketch15.AttachmentSupport = (doc.XZ_Plane, [""])
sketch15.MapMode = "FlatFace"
sketch15.AttachmentOffset = App.Placement(App.Vector(0, 0, 0.0625 * 25.4), App.Rotation())
sketch15.addGeometry(Part.Circle(App.Vector(183, 196, 0), App.Vector(0, 0, 1), 6), False)
sketch15.addConstraint(Sketcher.Constraint("Diameter", 0, 12.5))
sketch15.addConstraint(Sketcher.Constraint("DistanceX", -1, 1, 0, 3, 182.661))
sketch15.addConstraint(Sketcher.Constraint("DistanceY", -1, 1, 0, 3, 196.101))
pocket9 = doc.addObject("PartDesign::Pocket", "Pocket008")
body.addObject(pocket9)
pocket9.Profile = sketch15
pocket9.Type = "ThroughAll"

doc.recompute()
